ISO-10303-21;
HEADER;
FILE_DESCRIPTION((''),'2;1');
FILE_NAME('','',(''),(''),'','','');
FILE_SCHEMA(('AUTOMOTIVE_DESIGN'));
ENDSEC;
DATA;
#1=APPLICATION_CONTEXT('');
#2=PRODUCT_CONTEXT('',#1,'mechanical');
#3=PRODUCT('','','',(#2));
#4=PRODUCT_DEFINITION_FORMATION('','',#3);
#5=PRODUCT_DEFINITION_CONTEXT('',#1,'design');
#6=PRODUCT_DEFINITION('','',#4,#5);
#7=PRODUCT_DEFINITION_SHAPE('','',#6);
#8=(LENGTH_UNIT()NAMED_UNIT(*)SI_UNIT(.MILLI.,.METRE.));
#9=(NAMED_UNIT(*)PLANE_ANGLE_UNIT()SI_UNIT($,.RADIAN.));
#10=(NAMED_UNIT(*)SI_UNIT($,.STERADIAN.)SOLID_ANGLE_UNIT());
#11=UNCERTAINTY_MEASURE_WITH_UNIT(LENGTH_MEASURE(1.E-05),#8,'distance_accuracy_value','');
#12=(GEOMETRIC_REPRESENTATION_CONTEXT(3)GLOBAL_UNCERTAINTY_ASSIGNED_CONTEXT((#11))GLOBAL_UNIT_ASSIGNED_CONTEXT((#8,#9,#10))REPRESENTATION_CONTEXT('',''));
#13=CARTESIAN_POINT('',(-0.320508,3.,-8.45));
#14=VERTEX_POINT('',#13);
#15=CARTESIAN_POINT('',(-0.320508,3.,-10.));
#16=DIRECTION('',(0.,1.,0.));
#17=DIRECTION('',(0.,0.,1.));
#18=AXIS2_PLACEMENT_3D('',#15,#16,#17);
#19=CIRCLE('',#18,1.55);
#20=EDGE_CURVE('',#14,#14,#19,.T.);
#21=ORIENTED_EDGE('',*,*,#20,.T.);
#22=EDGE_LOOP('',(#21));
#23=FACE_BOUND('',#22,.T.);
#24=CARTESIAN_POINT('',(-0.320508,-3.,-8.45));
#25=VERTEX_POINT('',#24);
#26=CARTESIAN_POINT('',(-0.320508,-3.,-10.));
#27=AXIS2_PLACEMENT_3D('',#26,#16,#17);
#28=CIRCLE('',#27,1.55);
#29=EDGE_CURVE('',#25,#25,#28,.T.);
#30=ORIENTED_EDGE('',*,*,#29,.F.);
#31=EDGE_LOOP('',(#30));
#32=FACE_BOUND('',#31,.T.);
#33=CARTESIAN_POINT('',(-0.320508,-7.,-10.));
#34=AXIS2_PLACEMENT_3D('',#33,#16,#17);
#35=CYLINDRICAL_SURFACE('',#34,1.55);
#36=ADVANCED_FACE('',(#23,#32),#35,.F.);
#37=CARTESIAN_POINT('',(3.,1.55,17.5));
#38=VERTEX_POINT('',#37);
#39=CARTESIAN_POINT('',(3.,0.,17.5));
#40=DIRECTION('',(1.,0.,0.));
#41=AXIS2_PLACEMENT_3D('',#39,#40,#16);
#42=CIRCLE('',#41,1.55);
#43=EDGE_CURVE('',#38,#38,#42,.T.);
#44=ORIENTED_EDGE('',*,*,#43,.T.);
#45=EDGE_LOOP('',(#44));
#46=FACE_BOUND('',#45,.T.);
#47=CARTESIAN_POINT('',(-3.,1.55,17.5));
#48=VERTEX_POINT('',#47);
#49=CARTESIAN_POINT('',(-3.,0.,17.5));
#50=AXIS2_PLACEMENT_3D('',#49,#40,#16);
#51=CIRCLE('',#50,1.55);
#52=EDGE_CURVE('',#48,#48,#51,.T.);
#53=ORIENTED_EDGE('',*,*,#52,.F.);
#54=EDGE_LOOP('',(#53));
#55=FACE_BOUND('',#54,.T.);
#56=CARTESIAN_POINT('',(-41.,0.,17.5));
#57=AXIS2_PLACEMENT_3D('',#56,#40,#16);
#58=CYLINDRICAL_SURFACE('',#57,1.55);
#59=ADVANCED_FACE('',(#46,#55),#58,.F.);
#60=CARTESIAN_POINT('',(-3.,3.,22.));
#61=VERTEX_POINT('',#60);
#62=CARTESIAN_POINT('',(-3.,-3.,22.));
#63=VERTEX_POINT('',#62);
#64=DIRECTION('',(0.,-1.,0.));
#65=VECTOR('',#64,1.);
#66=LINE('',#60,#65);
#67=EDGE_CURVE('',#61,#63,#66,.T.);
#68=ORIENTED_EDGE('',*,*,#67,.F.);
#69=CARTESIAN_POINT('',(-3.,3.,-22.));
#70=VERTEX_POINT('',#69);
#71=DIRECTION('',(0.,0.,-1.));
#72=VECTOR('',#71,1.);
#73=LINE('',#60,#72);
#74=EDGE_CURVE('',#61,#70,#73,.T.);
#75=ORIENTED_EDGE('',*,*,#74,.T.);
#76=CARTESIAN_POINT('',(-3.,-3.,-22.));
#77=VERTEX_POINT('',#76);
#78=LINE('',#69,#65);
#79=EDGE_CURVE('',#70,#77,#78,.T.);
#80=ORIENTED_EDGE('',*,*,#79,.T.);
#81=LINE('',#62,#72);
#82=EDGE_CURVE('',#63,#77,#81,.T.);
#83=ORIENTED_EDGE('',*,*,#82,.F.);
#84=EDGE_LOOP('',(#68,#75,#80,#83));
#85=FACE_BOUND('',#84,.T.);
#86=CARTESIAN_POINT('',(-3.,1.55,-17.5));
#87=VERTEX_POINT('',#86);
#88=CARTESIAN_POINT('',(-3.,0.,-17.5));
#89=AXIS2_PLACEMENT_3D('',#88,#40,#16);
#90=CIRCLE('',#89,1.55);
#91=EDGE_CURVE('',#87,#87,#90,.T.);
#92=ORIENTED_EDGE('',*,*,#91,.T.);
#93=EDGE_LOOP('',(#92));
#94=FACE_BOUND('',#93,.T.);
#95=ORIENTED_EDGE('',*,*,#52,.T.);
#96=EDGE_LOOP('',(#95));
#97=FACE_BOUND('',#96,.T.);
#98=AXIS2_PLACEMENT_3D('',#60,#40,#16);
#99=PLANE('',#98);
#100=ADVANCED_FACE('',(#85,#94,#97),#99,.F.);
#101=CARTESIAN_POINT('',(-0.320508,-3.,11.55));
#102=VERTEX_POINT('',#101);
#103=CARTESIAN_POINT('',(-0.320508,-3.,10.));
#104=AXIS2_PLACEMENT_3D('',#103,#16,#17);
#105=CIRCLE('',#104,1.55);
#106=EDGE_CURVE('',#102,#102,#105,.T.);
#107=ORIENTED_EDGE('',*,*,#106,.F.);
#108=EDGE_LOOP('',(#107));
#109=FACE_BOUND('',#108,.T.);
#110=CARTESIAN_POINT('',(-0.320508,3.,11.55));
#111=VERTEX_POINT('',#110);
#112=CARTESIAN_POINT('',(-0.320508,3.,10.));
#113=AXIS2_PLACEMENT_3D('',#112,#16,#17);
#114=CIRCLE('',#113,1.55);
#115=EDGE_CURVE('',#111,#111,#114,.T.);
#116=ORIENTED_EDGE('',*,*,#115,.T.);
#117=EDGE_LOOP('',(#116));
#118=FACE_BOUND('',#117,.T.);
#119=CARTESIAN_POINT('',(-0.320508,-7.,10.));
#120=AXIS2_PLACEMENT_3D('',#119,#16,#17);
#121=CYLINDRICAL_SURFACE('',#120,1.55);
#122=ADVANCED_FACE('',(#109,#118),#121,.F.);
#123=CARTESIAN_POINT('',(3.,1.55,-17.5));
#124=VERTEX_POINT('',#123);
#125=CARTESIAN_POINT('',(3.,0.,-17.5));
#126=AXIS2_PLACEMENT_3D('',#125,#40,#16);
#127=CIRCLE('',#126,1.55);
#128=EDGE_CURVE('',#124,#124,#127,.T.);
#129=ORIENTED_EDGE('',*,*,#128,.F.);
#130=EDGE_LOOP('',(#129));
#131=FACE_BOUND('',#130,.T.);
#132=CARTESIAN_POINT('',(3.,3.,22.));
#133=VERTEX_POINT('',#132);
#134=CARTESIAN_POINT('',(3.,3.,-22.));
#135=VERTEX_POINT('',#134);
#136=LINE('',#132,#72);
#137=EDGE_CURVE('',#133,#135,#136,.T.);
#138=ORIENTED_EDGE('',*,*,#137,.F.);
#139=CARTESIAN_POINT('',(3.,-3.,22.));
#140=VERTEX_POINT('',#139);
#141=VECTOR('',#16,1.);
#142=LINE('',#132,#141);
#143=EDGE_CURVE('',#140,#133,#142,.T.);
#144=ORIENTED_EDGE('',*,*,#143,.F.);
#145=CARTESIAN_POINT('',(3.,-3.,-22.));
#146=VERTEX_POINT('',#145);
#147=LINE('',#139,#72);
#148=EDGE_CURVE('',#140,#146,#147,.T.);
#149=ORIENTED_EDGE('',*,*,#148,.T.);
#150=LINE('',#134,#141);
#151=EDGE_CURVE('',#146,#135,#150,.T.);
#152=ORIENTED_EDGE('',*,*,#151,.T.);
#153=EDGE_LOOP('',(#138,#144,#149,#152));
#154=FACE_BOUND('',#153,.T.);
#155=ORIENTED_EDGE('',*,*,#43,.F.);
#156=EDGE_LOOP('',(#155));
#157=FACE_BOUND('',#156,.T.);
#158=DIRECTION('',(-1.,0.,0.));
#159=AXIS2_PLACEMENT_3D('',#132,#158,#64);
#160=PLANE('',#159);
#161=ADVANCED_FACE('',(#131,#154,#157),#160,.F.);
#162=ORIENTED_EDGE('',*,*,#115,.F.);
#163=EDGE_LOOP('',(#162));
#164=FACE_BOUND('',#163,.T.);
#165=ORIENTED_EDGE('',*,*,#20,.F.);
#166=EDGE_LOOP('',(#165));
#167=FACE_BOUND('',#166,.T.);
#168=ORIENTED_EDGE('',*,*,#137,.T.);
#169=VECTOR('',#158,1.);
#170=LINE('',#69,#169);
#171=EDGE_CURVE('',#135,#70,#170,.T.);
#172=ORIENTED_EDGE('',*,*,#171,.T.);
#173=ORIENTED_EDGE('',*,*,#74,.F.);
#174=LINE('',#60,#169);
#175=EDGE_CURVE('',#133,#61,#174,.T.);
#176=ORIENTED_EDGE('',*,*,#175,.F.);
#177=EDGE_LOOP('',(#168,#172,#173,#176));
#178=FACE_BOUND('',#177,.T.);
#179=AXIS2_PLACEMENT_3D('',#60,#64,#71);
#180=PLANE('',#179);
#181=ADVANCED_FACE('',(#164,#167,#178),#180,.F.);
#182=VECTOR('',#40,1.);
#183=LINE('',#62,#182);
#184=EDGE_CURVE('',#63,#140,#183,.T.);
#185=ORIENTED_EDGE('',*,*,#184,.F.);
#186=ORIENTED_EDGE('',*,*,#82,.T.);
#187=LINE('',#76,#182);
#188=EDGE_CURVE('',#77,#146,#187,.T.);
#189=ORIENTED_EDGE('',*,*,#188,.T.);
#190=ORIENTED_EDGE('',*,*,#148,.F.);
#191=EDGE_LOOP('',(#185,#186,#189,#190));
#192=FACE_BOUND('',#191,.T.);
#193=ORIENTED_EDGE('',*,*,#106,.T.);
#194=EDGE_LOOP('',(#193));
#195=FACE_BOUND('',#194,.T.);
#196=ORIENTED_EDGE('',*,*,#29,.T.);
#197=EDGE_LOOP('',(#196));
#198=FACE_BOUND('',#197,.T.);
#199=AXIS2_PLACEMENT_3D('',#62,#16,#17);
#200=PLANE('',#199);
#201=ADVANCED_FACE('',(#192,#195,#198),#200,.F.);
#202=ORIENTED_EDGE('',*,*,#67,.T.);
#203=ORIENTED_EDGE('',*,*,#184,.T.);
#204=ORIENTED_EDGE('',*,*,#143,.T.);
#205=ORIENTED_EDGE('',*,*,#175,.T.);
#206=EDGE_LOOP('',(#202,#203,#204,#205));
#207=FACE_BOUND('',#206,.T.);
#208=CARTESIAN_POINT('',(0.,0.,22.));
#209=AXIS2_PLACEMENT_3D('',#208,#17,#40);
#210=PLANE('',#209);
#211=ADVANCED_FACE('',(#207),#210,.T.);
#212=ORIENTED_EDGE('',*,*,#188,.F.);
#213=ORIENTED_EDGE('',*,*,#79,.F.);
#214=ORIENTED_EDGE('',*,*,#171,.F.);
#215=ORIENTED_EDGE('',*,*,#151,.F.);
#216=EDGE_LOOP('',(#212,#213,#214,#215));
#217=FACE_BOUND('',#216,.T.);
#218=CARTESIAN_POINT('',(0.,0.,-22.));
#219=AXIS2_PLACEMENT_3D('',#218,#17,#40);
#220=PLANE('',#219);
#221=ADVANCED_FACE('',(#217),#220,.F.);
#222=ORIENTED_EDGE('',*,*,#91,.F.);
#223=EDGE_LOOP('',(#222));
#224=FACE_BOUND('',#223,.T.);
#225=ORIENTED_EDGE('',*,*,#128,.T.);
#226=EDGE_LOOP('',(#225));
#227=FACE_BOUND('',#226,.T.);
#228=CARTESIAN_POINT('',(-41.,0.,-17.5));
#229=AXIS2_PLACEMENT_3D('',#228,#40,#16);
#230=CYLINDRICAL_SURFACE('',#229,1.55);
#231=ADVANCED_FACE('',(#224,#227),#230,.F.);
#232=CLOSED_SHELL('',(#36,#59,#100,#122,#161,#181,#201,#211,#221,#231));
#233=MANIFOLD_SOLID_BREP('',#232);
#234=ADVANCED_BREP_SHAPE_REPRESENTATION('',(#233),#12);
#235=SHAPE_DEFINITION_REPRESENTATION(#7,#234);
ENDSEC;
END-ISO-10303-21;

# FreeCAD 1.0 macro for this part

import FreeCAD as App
import Part
import Sketcher
from FreeCAD import Vector
Q = App.Units.Quantity


def add_polygon(sketch, points):
    """Adds a closed chain of lines whose ends are joined by coincident constraints."""
    first, n = sketch.GeometryCount, len(points)
    for a, b in zip(points, points[1:] + points[:1]):
        sketch.addGeometry(Part.LineSegment(App.Vector(*a, 0), App.Vector(*b, 0)), False)
    for i in range(n):
        sketch.addConstraint(Sketcher.Constraint("Coincident", first + i, 2, first + (i + 1) % n, 1))

doc = App.newDocument("Part")
body = doc.addObject("PartDesign::Body", "Body")

# Sketch on XY plane
sketch1 = body.newObject("Sketcher::SketchObject", "Sketch")
sketch1.AttachmentSupport = (doc.getObject("XY_Plane"), [""])
sketch1.MapMode = "FlatFace"
add_polygon(sketch1, [(-3, 3), (-3, -3), (3, -3), (3, 3)])  # lines 0-3
sketch1.addConstraint(Sketcher.Constraint("Vertical", 0))
sketch1.addConstraint(Sketcher.Constraint("Horizontal", 1))
sketch1.addConstraint(Sketcher.Constraint("Vertical", 2))
sketch1.addConstraint(Sketcher.Constraint("Horizontal", 3))
sketch1.addConstraint(Sketcher.Constraint("Symmetric", 0, 2, 2, 2, -1, 1))
sketch1.addConstraint(Sketcher.Constraint("Equal", 3, 0))
sketch1.addConstraint(Sketcher.Constraint("DistanceX", 1, 1, 1, 2, Q("6 mm")))
pad1 = body.newObject("PartDesign::Pad", "Pad")
pad1.Profile = sketch1
pad1.Length = 44
pad1.Midplane = True

# Sketch on YZ plane
sketch2 = body.newObject("Sketcher::SketchObject", "Sketch001")
sketch2.AttachmentSupport = (doc.getObject("YZ_Plane"), [""])
sketch2.MapMode = "FlatFace"
sketch2.AttachmentOffset = App.Placement(Vector(0, 0, 3), App.Rotation())
sketch2.addGeometry(Part.Circle(Vector(0, 17.5, 0), Vector(0, 0, 1), 1.6), False)
sketch2.addGeometry(Part.Circle(Vector(0, -17.5, 0), Vector(0, 0, 1), 1.6), False)
sketch2.addConstraint(Sketcher.Constraint("Equal", 0, 1))
sketch2.addConstraint(Sketcher.Constraint("Symmetric", 0, 3, 1, 3, -1, 1))
sketch2.addConstraint(Sketcher.Constraint("PointOnObject", 0, 3, -2))
sketch2.addConstraint(Sketcher.Constraint("Diameter", 0, Q("3.1 mm")))
sketch2.addConstraint(Sketcher.Constraint("DistanceY", 1, 3, 0, 3, Q("35 mm")))
pocket1 = body.newObject("PartDesign::Pocket", "Pocket")
pocket1.Profile = sketch2
pocket1.Length = 44

# Sketch on XZ plane
sketch3 = body.newObject("Sketcher::SketchObject", "Sketch002")
sketch3.AttachmentSupport = (doc.getObject("XZ_Plane"), [""])
sketch3.MapMode = "FlatFace"
sketch3.AttachmentOffset = App.Placement(Vector(0, 0, -3), App.Rotation())
sketch3.addGeometry(Part.Circle(Vector(-0.3, 10, 0), Vector(0, 0, 1), 1.6), False)
sketch3.addGeometry(Part.Circle(Vector(-0.3, -10, 0), Vector(0, 0, 1), 1.6), False)
sketch3.addConstraint(Sketcher.Constraint("Equal", 0, 1))
sketch3.addConstraint(Sketcher.Constraint("Symmetric", 0, 3, 1, 3, -1))
sketch3.addConstraint(Sketcher.Constraint("Diameter", 0, Q("3.1 mm")))
sketch3.addConstraint(Sketcher.Constraint("DistanceY", -1, 1, 0, 3, Q("10 mm")))
sketch3.addConstraint(Sketcher.Constraint("DistanceX", 0, 3, -1, 1, Q("0.320508 mm")))
pocket2 = body.newObject("PartDesign::Pocket", "Pocket001")
pocket2.Profile = sketch3
pocket2.Length = 10
pocket2.Reversed = True

doc.recompute()
